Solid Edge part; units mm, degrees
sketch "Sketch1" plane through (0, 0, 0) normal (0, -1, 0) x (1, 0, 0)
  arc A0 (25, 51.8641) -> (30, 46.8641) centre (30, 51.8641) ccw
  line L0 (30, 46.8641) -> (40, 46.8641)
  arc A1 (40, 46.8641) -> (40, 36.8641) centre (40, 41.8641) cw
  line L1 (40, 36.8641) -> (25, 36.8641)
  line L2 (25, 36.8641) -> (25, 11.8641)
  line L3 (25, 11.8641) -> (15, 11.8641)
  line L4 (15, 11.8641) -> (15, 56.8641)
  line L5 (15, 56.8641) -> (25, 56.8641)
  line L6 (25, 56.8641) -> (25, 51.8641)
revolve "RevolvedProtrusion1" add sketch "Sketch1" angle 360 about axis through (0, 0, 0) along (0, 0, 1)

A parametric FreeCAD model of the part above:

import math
import FreeCAD as App
import Part
import Sketcher

V = App.Vector

doc = App.newDocument("Part")
params = doc.addObject("Spreadsheet::Sheet", "Params")
for row, (alias, value) in enumerate([
    ("sketch1_radius", "5 mm"),
    ("sketch1_width", "10 mm"),
    ("sketch1_height", "5 mm"),
    ("sketch1_height2", "45 mm"),
    ("revolution_angle", "360 deg"),
], start=1):
    params.set(f"A{row}", alias)
    params.set(f"B{row}", "=" + value)
    params.setAlias(f"B{row}", alias)

body = doc.addObject("PartDesign::Body", "Body")

sketch1 = body.newObject("Sketcher::SketchObject", "Sketch")
sketch1.AttachmentSupport = (doc.getObject("XZ_Plane"), [""])
sketch1.MapMode = "FlatFace"
sketch1.addGeometry(Part.ArcOfCircle(Part.Circle(V(30, 52, 0), V(0, 0, 1), 5), math.radians(180), math.radians(270)), False)
sketch1.addGeometry(Part.LineSegment(V(25, 52, 0), V(25, 57, 0)), False)
sketch1.addGeometry(Part.LineSegment(V(25, 57, 0), V(15, 57, 0)), False)
sketch1.addGeometry(Part.LineSegment(V(15, 57, 0), V(15, 12, 0)), False)
sketch1.addGeometry(Part.LineSegment(V(15, 12, 0), V(25, 12, 0)), False)
sketch1.addGeometry(Part.LineSegment(V(25, 12, 0), V(25, 37, 0)), False)
sketch1.addGeometry(Part.LineSegment(V(25, 37, 0), V(40, 37, 0)), False)
sketch1.addGeometry(Part.ArcOfCircle(Part.Circle(V(40, 42, 0), V(0, 0, 1), 5), math.radians(-90), math.radians(90)), False)
sketch1.addGeometry(Part.LineSegment(V(40, 47, 0), V(30, 47, 0)), False)
sketch1.addConstraint(Sketcher.Constraint("Tangent", 0, 1, 1, 1))
sketch1.addConstraint(Sketcher.Constraint("Coincident", 1, 2, 2, 1))
sketch1.addConstraint(Sketcher.Constraint("Coincident", 2, 2, 3, 1))
sketch1.addConstraint(Sketcher.Constraint("Coincident", 3, 2, 4, 1))
sketch1.addConstraint(Sketcher.Constraint("Coincident", 4, 2, 5, 1))
sketch1.addConstraint(Sketcher.Constraint("Coincident", 5, 2, 6, 1))
sketch1.addConstraint(Sketcher.Constraint("Tangent", 6, 2, 7, 1))
sketch1.addConstraint(Sketcher.Constraint("Tangent", 7, 2, 8, 1))
sketch1.addConstraint(Sketcher.Constraint("Tangent", 8, 2, 0, 2))
sketch1.addConstraint(Sketcher.Constraint("Vertical", 1))
sketch1.addConstraint(Sketcher.Constraint("Horizontal", 2))
sketch1.addConstraint(Sketcher.Constraint("Vertical", 3))
sketch1.addConstraint(Sketcher.Constraint("Horizontal", 4))
sketch1.addConstraint(Sketcher.Constraint("Vertical", 5))
sketch1.addConstraint(Sketcher.Constraint("Horizontal", 6))
sketch1.addConstraint(Sketcher.Constraint("Horizontal", 8))
sketch1.addConstraint(Sketcher.Constraint("Equal", 0, 7))
sketch1.addConstraint(Sketcher.Constraint("Vertical", 1, 2, 4, 2))
sketch1.addConstraint(Sketcher.Constraint("Equal", 4, 8))
sketch1.addConstraint(Sketcher.Constraint("Radius", 0, 5.0))
sketch1.addConstraint(Sketcher.Constraint("DistanceX", 2, 2, 2, 1, 10.0))
sketch1.addConstraint(Sketcher.Constraint("DistanceY", 1, 1, 1, 2, 5.0))
sketch1.addConstraint(Sketcher.Constraint("DistanceY", 3, 2, 3, 1, 45.0))
sketch1.addConstraint(Sketcher.Constraint("DistanceX", -1, 1, 0, 3, 30.0))
sketch1.addConstraint(Sketcher.Constraint("DistanceY", -1, 1, 0, 3, 51.864))
sketch1.setExpression("Constraints[19]", "Params.sketch1_radius")
sketch1.setExpression("Constraints[20]", "Params.sketch1_width")
sketch1.setExpression("Constraints[21]", "Params.sketch1_height")
sketch1.setExpression("Constraints[22]", "Params.sketch1_height2")
revolution = body.newObject("PartDesign::Revolution", "Revolution")
revolution.Profile = sketch1
revolution.ReferenceAxis = (sketch1, ["V_Axis"])
revolution.setExpression("Angle", "Params.revolution_angle")

doc.recompute()
